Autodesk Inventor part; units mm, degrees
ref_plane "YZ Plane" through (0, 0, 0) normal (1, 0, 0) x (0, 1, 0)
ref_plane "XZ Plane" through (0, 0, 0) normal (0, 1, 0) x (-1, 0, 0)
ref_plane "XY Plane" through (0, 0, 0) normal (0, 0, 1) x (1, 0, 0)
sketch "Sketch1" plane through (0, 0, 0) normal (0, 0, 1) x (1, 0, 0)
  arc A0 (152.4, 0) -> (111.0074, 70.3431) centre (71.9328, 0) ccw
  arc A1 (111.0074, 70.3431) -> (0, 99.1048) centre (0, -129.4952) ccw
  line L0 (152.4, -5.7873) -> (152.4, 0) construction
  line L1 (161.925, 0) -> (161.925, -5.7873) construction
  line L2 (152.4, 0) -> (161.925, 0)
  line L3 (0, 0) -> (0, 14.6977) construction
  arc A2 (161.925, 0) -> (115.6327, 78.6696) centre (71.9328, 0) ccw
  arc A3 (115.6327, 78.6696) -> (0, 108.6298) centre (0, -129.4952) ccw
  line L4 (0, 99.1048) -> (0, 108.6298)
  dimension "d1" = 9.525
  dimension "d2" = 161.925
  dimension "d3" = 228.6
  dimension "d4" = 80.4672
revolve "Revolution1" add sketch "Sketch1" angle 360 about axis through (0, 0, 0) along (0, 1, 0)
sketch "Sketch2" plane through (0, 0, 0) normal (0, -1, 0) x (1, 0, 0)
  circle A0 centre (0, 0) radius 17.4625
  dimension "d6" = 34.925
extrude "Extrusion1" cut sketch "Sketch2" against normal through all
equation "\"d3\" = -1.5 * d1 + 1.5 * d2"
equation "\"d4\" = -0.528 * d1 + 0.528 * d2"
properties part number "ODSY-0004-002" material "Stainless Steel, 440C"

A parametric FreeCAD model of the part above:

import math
import FreeCAD as App
import Part
import Sketcher

V = App.Vector
Q = App.Units.Quantity

doc = App.newDocument("Part")
params = doc.addObject("Spreadsheet::Sheet", "Params")
for row, (alias, value) in enumerate([
    ("sketch1_radius", "9 in"),
    ("sketch1_radius2", "3.168 in"),
    ("sketch1_width", "0.375 in"),
    ("revolution_angle", "360 deg"),
    ("sketch2_diameter", "1.375 in"),
], start=1):
    params.set(f"A{row}", alias)
    params.set(f"B{row}", "=" + value)
    params.setAlias(f"B{row}", alias)

body = doc.addObject("PartDesign::Body", "Body")

# Sketch on XY plane
sketch1 = doc.addObject("Sketcher::SketchObject", "Sketch")
body.addObject(sketch1)
sketch1.AttachmentSupport = (doc.XY_Plane, [""])
sketch1.MapMode = "FlatFace"
sketch1.addGeometry(Part.ArcOfCircle(Part.Circle(V(71.9328, 0, 0), V(0, 0, 1), 80.4672), math.radians(0), math.radians(60.948446)), False)
sketch1.addGeometry(Part.LineSegment(V(152.4, 0, 0), V(161.925, 0, 0)), False)
sketch1.addGeometry(Part.ArcOfCircle(Part.Circle(V(71.9328, 0, 0), V(0, 0, 1), 89.9922), math.radians(0), math.radians(60.94842)), False)
sketch1.addGeometry(Part.ArcOfCircle(Part.Circle(V(0, -129.4952, 0), V(0, 0, 1), 238.124978), math.radians(60.948427), math.radians(90)), False)
sketch1.addGeometry(Part.LineSegment(V(0, 108.6298, 0), V(0, 99.1048, 0)), False)
sketch1.addGeometry(Part.ArcOfCircle(Part.Circle(V(0, -129.4952, 0), V(0, 0, 1), 228.600063), math.radians(60.948436), math.radians(90)), False)
sketch1.addConstraint(Sketcher.Constraint("Coincident", 0, 1, 1, 1))
sketch1.addConstraint(Sketcher.Constraint("Coincident", 1, 2, 2, 1))
sketch1.addConstraint(Sketcher.Constraint("Tangent", 2, 2, 3, 1))
sketch1.addConstraint(Sketcher.Constraint("Coincident", 3, 2, 4, 1))
sketch1.addConstraint(Sketcher.Constraint("Coincident", 4, 2, 5, 2))
sketch1.addConstraint(Sketcher.Constraint("Tangent", 5, 1, 0, 2))
sketch1.addConstraint(Sketcher.Constraint("Horizontal", 1))
sketch1.addConstraint(Sketcher.Constraint("Vertical", 4))
sketch1.addConstraint(Sketcher.Constraint("Coincident", 2, 3, 0, 3))
sketch1.addConstraint(Sketcher.Constraint("Coincident", 5, 3, 3, 3))
sketch1.addConstraint(Sketcher.Constraint("PointOnObject", 0, 3, -1))
sketch1.addConstraint(Sketcher.Constraint("PointOnObject", 3, 3, -2))
sketch1.addConstraint(Sketcher.Constraint("PointOnObject", 0, 1, -1))
sketch1.addConstraint(Sketcher.Constraint("PointOnObject", 3, 2, -2))
sketch1.addConstraint(Sketcher.Constraint("Radius", 5, Q("9 in")))
sketch1.addConstraint(Sketcher.Constraint("Radius", 0, Q("3.168 in")))
sketch1.addConstraint(Sketcher.Constraint("DistanceX", 1, 1, 1, 2, Q("0.375 in")))
sketch1.addConstraint(Sketcher.Constraint("DistanceX", -1, 1, 1, 2, Q("6.375 in")))
sketch1.setExpression("Constraints[14]", "Params.sketch1_radius")
sketch1.setExpression("Constraints[15]", "Params.sketch1_radius2")
sketch1.setExpression("Constraints[16]", "Params.sketch1_width")
revolution = doc.addObject("PartDesign::Revolution", "Revolution")
body.addObject(revolution)
revolution.Profile = sketch1
revolution.ReferenceAxis = (sketch1, ["V_Axis"])
revolution.setExpression("Angle", "Params.revolution_angle")

# Sketch on XZ plane
sketch2 = doc.addObject("Sketcher::SketchObject", "Sketch001")
body.addObject(sketch2)
sketch2.AttachmentSupport = (doc.XZ_Plane, [""])
sketch2.MapMode = "FlatFace"
sketch2.addGeometry(Part.Circle(V(0, 0, 0), V(0, 0, 1), 17.4625), False)
sketch2.addConstraint(Sketcher.Constraint("Coincident", 0, 3, -1, 1))
sketch2.addConstraint(Sketcher.Constraint("Diameter", 0, Q("1.375 in")))
sketch2.setExpression("Constraints[1]", "Params.sketch2_diameter")
pocket1 = doc.addObject("PartDesign::Pocket", "Pocket")
body.addObject(pocket1)
pocket1.Profile = sketch2
pocket1.Type = "ThroughAll"

doc.recompute()
